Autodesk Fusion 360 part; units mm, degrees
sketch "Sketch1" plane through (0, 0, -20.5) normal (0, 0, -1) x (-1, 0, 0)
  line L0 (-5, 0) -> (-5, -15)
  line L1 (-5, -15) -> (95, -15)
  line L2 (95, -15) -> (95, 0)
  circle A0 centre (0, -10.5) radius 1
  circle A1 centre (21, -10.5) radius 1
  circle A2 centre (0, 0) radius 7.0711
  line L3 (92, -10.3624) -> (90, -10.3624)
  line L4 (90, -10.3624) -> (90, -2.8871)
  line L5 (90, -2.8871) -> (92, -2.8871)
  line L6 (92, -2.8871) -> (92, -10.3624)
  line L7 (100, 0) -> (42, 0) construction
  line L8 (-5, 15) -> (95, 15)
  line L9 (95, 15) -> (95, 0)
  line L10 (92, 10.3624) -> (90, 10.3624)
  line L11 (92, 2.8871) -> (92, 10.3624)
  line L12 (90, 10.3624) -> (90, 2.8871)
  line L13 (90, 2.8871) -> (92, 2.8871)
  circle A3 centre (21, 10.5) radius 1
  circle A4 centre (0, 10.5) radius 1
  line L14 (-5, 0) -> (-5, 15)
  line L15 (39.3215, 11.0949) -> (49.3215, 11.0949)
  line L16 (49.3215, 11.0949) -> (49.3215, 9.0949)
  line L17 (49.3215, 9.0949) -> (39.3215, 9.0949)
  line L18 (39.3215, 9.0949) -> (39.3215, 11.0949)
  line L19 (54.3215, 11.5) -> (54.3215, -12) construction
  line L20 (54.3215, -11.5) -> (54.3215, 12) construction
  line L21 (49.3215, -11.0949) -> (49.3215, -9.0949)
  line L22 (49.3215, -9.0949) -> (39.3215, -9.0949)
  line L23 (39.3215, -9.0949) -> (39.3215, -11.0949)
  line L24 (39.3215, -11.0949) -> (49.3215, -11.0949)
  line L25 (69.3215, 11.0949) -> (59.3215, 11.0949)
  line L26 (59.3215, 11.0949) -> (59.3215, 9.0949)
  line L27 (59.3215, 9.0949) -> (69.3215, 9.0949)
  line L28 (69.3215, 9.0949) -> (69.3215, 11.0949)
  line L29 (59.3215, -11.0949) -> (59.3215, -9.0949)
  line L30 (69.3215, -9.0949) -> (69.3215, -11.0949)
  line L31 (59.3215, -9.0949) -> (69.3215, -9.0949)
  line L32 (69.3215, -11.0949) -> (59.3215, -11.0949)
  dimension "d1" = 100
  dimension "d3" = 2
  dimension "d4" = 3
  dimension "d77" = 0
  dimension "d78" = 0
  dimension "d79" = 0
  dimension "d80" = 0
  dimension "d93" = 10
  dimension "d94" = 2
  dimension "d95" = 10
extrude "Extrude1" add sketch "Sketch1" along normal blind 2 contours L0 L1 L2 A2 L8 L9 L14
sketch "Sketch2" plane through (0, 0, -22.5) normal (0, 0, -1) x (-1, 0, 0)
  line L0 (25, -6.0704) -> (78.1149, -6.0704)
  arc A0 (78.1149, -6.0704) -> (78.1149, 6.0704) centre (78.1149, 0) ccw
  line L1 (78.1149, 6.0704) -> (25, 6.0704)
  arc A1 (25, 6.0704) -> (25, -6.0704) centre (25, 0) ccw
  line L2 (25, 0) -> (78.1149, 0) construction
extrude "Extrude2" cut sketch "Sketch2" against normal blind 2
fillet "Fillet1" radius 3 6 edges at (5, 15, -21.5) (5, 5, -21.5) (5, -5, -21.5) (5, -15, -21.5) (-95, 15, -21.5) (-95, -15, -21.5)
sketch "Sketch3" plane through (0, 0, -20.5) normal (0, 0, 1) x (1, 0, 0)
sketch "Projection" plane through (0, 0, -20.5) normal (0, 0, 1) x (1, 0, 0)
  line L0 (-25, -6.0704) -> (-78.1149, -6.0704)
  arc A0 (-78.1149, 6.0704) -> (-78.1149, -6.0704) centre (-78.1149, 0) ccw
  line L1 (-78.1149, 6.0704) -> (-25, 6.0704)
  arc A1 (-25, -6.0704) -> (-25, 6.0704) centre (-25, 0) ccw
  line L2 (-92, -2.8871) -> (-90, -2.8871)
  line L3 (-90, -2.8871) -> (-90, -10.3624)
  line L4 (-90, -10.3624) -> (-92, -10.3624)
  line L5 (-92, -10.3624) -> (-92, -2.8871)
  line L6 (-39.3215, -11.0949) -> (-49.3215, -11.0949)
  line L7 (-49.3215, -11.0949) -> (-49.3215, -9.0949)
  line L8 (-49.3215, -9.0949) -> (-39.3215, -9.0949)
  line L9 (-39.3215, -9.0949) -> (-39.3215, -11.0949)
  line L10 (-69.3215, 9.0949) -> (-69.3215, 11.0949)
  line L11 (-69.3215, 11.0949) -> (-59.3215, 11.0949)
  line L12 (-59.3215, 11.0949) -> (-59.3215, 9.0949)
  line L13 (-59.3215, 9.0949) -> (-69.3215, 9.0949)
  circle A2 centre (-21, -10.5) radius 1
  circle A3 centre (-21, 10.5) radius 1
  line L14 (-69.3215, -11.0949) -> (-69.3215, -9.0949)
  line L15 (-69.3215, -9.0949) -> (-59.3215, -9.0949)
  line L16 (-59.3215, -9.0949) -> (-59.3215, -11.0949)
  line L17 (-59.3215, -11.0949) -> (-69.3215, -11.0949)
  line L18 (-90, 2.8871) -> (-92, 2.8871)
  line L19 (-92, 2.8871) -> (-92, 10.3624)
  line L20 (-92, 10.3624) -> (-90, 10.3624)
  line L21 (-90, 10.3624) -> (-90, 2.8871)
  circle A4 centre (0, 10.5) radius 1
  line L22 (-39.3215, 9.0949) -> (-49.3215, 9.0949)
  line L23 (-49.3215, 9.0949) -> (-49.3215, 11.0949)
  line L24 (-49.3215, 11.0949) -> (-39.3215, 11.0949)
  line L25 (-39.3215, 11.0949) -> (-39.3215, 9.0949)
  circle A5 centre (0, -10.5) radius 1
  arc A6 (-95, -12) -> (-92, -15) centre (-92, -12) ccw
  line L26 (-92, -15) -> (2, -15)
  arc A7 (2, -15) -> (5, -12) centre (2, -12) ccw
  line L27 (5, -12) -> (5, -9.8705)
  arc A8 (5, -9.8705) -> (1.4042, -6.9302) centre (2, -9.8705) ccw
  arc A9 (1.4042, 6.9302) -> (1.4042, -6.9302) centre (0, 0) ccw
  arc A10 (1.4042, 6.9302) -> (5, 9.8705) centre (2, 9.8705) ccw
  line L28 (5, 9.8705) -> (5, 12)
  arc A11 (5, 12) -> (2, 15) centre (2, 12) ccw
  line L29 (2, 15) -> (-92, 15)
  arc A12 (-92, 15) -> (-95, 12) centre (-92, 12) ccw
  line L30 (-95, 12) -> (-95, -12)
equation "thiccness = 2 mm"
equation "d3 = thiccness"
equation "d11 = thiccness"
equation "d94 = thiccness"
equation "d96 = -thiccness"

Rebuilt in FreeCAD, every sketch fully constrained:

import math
import FreeCAD as App
import Part
import Sketcher
Q = App.Units.Quantity


def edges_at(feature, points):
    """Names of the edges that pass closest to the given points."""
    edges = feature.Shape.Edges
    near = lambda p: min(range(len(edges)), key=lambda i: edges[i].distToShape(Part.Vertex(*p))[0])
    return sorted({f"Edge{near(p) + 1}" for p in points})

doc = App.newDocument("Part")
body = doc.addObject("PartDesign::Body", "Body")

# Sketch on XY plane
sketch1 = body.newObject("Sketcher::SketchObject", "Sketch")
sketch1.AttachmentSupport = (doc.getObject("XY_Plane"), [""])
sketch1.MapMode = "FlatFace"
sketch1.AttachmentOffset = App.Placement(App.Vector(0, 0, -20.5), App.Rotation())
sketch1.addGeometry(Part.ArcOfCircle(Part.Circle(App.Vector(0, 0, 0), App.Vector(0, 0, 1), 7.1), math.radians(45), math.radians(315)), False)
sketch1.addGeometry(Part.LineSegment(App.Vector(5, -5, 0), App.Vector(5, -15, 0)), False)
sketch1.addGeometry(Part.LineSegment(App.Vector(5, -15, 0), App.Vector(-95, -15, 0)), False)
sketch1.addGeometry(Part.LineSegment(App.Vector(-95, -15, 0), App.Vector(-95, 15, 0)), False)
sketch1.addGeometry(Part.LineSegment(App.Vector(-95, 15, 0), App.Vector(5, 15, 0)), False)
sketch1.addGeometry(Part.LineSegment(App.Vector(5, 15, 0), App.Vector(5, 5, 0)), False)
sketch1.addGeometry(Part.Circle(App.Vector(0, -10.5, 0), App.Vector(0, 0, 1), 1), False)
sketch1.addGeometry(Part.Circle(App.Vector(-21, -10.5, 0), App.Vector(0, 0, 1), 1), False)
sketch1.addGeometry(Part.LineSegment(App.Vector(-49.3, -9.1, 0), App.Vector(-49.3, -11.1, 0)), False)
sketch1.addGeometry(Part.LineSegment(App.Vector(-49.3, -11.1, 0), App.Vector(-39.3, -11.1, 0)), False)
sketch1.addGeometry(Part.LineSegment(App.Vector(-39.3, -11.1, 0), App.Vector(-39.3, -9.1, 0)), False)
sketch1.addGeometry(Part.LineSegment(App.Vector(-39.3, -9.1, 0), App.Vector(-49.3, -9.1, 0)), False)
sketch1.addGeometry(Part.LineSegment(App.Vector(-69.3, -11.1, 0), App.Vector(-59.3, -11.1, 0)), False)
sketch1.addGeometry(Part.LineSegment(App.Vector(-59.3, -11.1, 0), App.Vector(-59.3, -9.1, 0)), False)
sketch1.addGeometry(Part.LineSegment(App.Vector(-59.3, -9.1, 0), App.Vector(-69.3, -9.1, 0)), False)
sketch1.addGeometry(Part.LineSegment(App.Vector(-69.3, -9.1, 0), App.Vector(-69.3, -11.1, 0)), False)
sketch1.addGeometry(Part.LineSegment(App.Vector(-92, -2.9, 0), App.Vector(-92, -10.4, 0)), False)
sketch1.addGeometry(Part.LineSegment(App.Vector(-92, -10.4, 0), App.Vector(-90, -10.4, 0)), False)
sketch1.addGeometry(Part.LineSegment(App.Vector(-90, -10.4, 0), App.Vector(-90, -2.9, 0)), False)
sketch1.addGeometry(Part.LineSegment(App.Vector(-90, -2.9, 0), App.Vector(-92, -2.9, 0)), False)
sketch1.addGeometry(Part.Circle(App.Vector(0, 10.5, 0), App.Vector(0, 0, 1), 1), False)
sketch1.addGeometry(Part.Circle(App.Vector(-21, 10.5, 0), App.Vector(0, 0, 1), 1), False)
sketch1.addGeometry(Part.LineSegment(App.Vector(-90, 10.4, 0), App.Vector(-92, 10.4, 0)), False)
sketch1.addGeometry(Part.LineSegment(App.Vector(-92, 10.4, 0), App.Vector(-92, 2.9, 0)), False)
sketch1.addGeometry(Part.LineSegment(App.Vector(-92, 2.9, 0), App.Vector(-90, 2.9, 0)), False)
sketch1.addGeometry(Part.LineSegment(App.Vector(-90, 2.9, 0), App.Vector(-90, 10.4, 0)), False)
sketch1.addGeometry(Part.LineSegment(App.Vector(-39.3, 9.1, 0), App.Vector(-39.3, 11.1, 0)), False)
sketch1.addGeometry(Part.LineSegment(App.Vector(-39.3, 11.1, 0), App.Vector(-49.3, 11.1, 0)), False)
sketch1.addGeometry(Part.LineSegment(App.Vector(-49.3, 11.1, 0), App.Vector(-49.3, 9.1, 0)), False)
sketch1.addGeometry(Part.LineSegment(App.Vector(-49.3, 9.1, 0), App.Vector(-39.3, 9.1, 0)), False)
sketch1.addGeometry(Part.LineSegment(App.Vector(-59.3, 11.1, 0), App.Vector(-69.3, 11.1, 0)), False)
sketch1.addGeometry(Part.LineSegment(App.Vector(-69.3, 11.1, 0), App.Vector(-69.3, 9.1, 0)), False)
sketch1.addGeometry(Part.LineSegment(App.Vector(-69.3, 9.1, 0), App.Vector(-59.3, 9.1, 0)), False)
sketch1.addGeometry(Part.LineSegment(App.Vector(-59.3, 9.1, 0), App.Vector(-59.3, 11.1, 0)), False)
sketch1.addConstraint(Sketcher.Constraint("Coincident", 0, 2, 1, 1))
sketch1.addConstraint(Sketcher.Constraint("Coincident", 1, 2, 2, 1))
sketch1.addConstraint(Sketcher.Constraint("Coincident", 2, 2, 3, 1))
sketch1.addConstraint(Sketcher.Constraint("Coincident", 3, 2, 4, 1))
sketch1.addConstraint(Sketcher.Constraint("Coincident", 4, 2, 5, 1))
sketch1.addConstraint(Sketcher.Constraint("Coincident", 5, 2, 0, 1))
sketch1.addConstraint(Sketcher.Constraint("Coincident", 8, 2, 9, 1))
sketch1.addConstraint(Sketcher.Constraint("Coincident", 9, 2, 10, 1))
sketch1.addConstraint(Sketcher.Constraint("Coincident", 10, 2, 11, 1))
sketch1.addConstraint(Sketcher.Constraint("Coincident", 11, 2, 8, 1))
sketch1.addConstraint(Sketcher.Constraint("Coincident", 12, 2, 13, 1))
sketch1.addConstraint(Sketcher.Constraint("Coincident", 13, 2, 14, 1))
sketch1.addConstraint(Sketcher.Constraint("Coincident", 14, 2, 15, 1))
sketch1.addConstraint(Sketcher.Constraint("Coincident", 15, 2, 12, 1))
sketch1.addConstraint(Sketcher.Constraint("Coincident", 16, 2, 17, 1))
sketch1.addConstraint(Sketcher.Constraint("Coincident", 17, 2, 18, 1))
sketch1.addConstraint(Sketcher.Constraint("Coincident", 18, 2, 19, 1))
sketch1.addConstraint(Sketcher.Constraint("Coincident", 19, 2, 16, 1))
sketch1.addConstraint(Sketcher.Constraint("Coincident", 22, 2, 23, 1))
sketch1.addConstraint(Sketcher.Constraint("Coincident", 23, 2, 24, 1))
sketch1.addConstraint(Sketcher.Constraint("Coincident", 24, 2, 25, 1))
sketch1.addConstraint(Sketcher.Constraint("Coincident", 25, 2, 22, 1))
sketch1.addConstraint(Sketcher.Constraint("Coincident", 26, 2, 27, 1))
sketch1.addConstraint(Sketcher.Constraint("Coincident", 27, 2, 28, 1))
sketch1.addConstraint(Sketcher.Constraint("Coincident", 28, 2, 29, 1))
sketch1.addConstraint(Sketcher.Constraint("Coincident", 29, 2, 26, 1))
sketch1.addConstraint(Sketcher.Constraint("Coincident", 30, 2, 31, 1))
sketch1.addConstraint(Sketcher.Constraint("Coincident", 31, 2, 32, 1))
sketch1.addConstraint(Sketcher.Constraint("Coincident", 32, 2, 33, 1))
sketch1.addConstraint(Sketcher.Constraint("Coincident", 33, 2, 30, 1))
sketch1.addConstraint(Sketcher.Constraint("Vertical", 1))
sketch1.addConstraint(Sketcher.Constraint("Horizontal", 2))
sketch1.addConstraint(Sketcher.Constraint("Vertical", 3))
sketch1.addConstraint(Sketcher.Constraint("Horizontal", 4))
sketch1.addConstraint(Sketcher.Constraint("Vertical", 5))
sketch1.addConstraint(Sketcher.Constraint("Vertical", 8))
sketch1.addConstraint(Sketcher.Constraint("Horizontal", 9))
sketch1.addConstraint(Sketcher.Constraint("Vertical", 10))
sketch1.addConstraint(Sketcher.Constraint("Horizontal", 11))
sketch1.addConstraint(Sketcher.Constraint("Horizontal", 12))
sketch1.addConstraint(Sketcher.Constraint("Vertical", 13))
sketch1.addConstraint(Sketcher.Constraint("Horizontal", 14))
sketch1.addConstraint(Sketcher.Constraint("Vertical", 15))
sketch1.addConstraint(Sketcher.Constraint("Vertical", 16))
sketch1.addConstraint(Sketcher.Constraint("Horizontal", 17))
sketch1.addConstraint(Sketcher.Constraint("Vertical", 18))
sketch1.addConstraint(Sketcher.Constraint("Horizontal", 19))
sketch1.addConstraint(Sketcher.Constraint("Horizontal", 22))
sketch1.addConstraint(Sketcher.Constraint("Vertical", 23))
sketch1.addConstraint(Sketcher.Constraint("Horizontal", 24))
sketch1.addConstraint(Sketcher.Constraint("Vertical", 25))
sketch1.addConstraint(Sketcher.Constraint("Vertical", 26))
sketch1.addConstraint(Sketcher.Constraint("Horizontal", 27))
sketch1.addConstraint(Sketcher.Constraint("Vertical", 28))
sketch1.addConstraint(Sketcher.Constraint("Horizontal", 29))
sketch1.addConstraint(Sketcher.Constraint("Horizontal", 30))
sketch1.addConstraint(Sketcher.Constraint("Vertical", 31))
sketch1.addConstraint(Sketcher.Constraint("Horizontal", 32))
sketch1.addConstraint(Sketcher.Constraint("Vertical", 33))
sketch1.addConstraint(Sketcher.Constraint("Coincident", 0, 3, -1, 1))
sketch1.addConstraint(Sketcher.Constraint("Equal", 6, 7))
sketch1.addConstraint(Sketcher.Constraint("Equal", 7, 20))
sketch1.addConstraint(Sketcher.Constraint("Equal", 20, 21))
sketch1.addConstraint(Sketcher.Constraint("Symmetric", 6, 3, 20, 3, -1, 1))
sketch1.addConstraint(Sketcher.Constraint("Symmetric", 7, 3, 21, 3, -1))
sketch1.addConstraint(Sketcher.Constraint("Symmetric", 1, 2, 4, 2, -1))
sketch1.addConstraint(Sketcher.Constraint("Symmetric", 16, 2, 22, 2, -1))
sketch1.addConstraint(Sketcher.Constraint("Symmetric", 18, 2, 24, 2, -1))
sketch1.addConstraint(Sketcher.Constraint("Symmetric", 9, 2, 26, 2, -1))
sketch1.addConstraint(Sketcher.Constraint("Symmetric", 11, 2, 28, 2, -1))
sketch1.addConstraint(Sketcher.Constraint("Symmetric", 15, 2, 30, 2, -1))
sketch1.addConstraint(Sketcher.Constraint("Symmetric", 13, 2, 32, 2, -1))
sketch1.addConstraint(Sketcher.Constraint("PointOnObject", 6, 3, -2))
sketch1.addConstraint(Sketcher.Constraint("Horizontal", 6, 3, 7, 3))
sketch1.addConstraint(Sketcher.Constraint("Horizontal", 9, 2, 12, 2))
sketch1.addConstraint(Sketcher.Constraint("Horizontal", 11, 2, 13, 2))
sketch1.addConstraint(Sketcher.Constraint("Equal", 11, 12))
sketch1.addConstraint(Sketcher.Constraint("Equal", 32, 1))
sketch1.addConstraint(Sketcher.Constraint("Equal", 24, 8))
sketch1.addConstraint(Sketcher.Constraint("Diameter", 6, Q("2 mm")))
sketch1.addConstraint(Sketcher.Constraint("DistanceX", 2, 2, 2, 1, Q("100 mm")))
sketch1.addConstraint(Sketcher.Constraint("DistanceX", 9, 1, 9, 2, Q("10 mm")))
sketch1.addConstraint(Sketcher.Constraint("DistanceX", 17, 1, 17, 2, Q("2 mm")))
sketch1.addConstraint(Sketcher.Constraint("DistanceY", 0, 2, 5, 2, Q("10 mm")))
sketch1.addConstraint(Sketcher.Constraint("DistanceX", 12, 2, 8, 2, Q("10 mm")))
sketch1.addConstraint(Sketcher.Constraint("DistanceX", 2, 2, 16, 2, Q("3 mm")))
sketch1.addConstraint(Sketcher.Constraint("DistanceX", 7, 3, -1, 1, Q("21 mm")))
sketch1.addConstraint(Sketcher.Constraint("DistanceX", -1, 1, 0, 2, Q("5 mm")))
sketch1.addConstraint(Sketcher.Constraint("DistanceY", 6, 3, 20, 3, Q("21 mm")))
sketch1.addConstraint(Sketcher.Constraint("DistanceY", 16, 2, 16, 1, Q("7.4753 mm")))
sketch1.addConstraint(Sketcher.Constraint("DistanceY", 8, 2, -1, 1, Q("11.095 mm")))
sketch1.addConstraint(Sketcher.Constraint("DistanceY", 18, 2, -1, 1, Q("2.887 mm")))
sketch1.addConstraint(Sketcher.Constraint("DistanceX", 8, 2, -1, 1, Q("49.3215 mm")))
pad1 = body.newObject("PartDesign::Pad", "Pad")
pad1.Profile = sketch1
pad1.Length = 2
pad1.Reversed = True

# Sketch on XY plane
sketch2 = body.newObject("Sketcher::SketchObject", "Sketch001")
sketch2.AttachmentSupport = (doc.getObject("XY_Plane"), [""])
sketch2.MapMode = "FlatFace"
sketch2.AttachmentOffset = App.Placement(App.Vector(0, 0, -22.5), App.Rotation())
sketch2.addGeometry(Part.ArcOfCircle(Part.Circle(App.Vector(-25, 0, 0), App.Vector(0, 0, 1), 6), math.radians(-90), math.radians(90)), False)
sketch2.addGeometry(Part.LineSegment(App.Vector(-25, -6, 0), App.Vector(-78, -6, 0)), False)
sketch2.addGeometry(Part.ArcOfCircle(Part.Circle(App.Vector(-78, 0, 0), App.Vector(0, 0, 1), 6), math.radians(90), math.radians(270)), False)
sketch2.addGeometry(Part.LineSegment(App.Vector(-78, 6, 0), App.Vector(-25, 6, 0)), False)
sketch2.addConstraint(Sketcher.Constraint("Tangent", 0, 1, 1, 1))
sketch2.addConstraint(Sketcher.Constraint("Tangent", 1, 2, 2, 2))
sketch2.addConstraint(Sketcher.Constraint("Tangent", 2, 1, 3, 1))
sketch2.addConstraint(Sketcher.Constraint("Tangent", 3, 2, 0, 2))
sketch2.addConstraint(Sketcher.Constraint("Horizontal", 1))
sketch2.addConstraint(Sketcher.Constraint("Horizontal", 3))
sketch2.addConstraint(Sketcher.Constraint("PointOnObject", 0, 3, -1))
sketch2.addConstraint(Sketcher.Constraint("DistanceX", 0, 3, -1, 1, Q("25 mm")))
sketch2.addConstraint(Sketcher.Constraint("Radius", 0, Q("6.0704 mm")))
sketch2.addConstraint(Sketcher.Constraint("DistanceX", 1, 2, 1, 1, Q("53.115 mm")))
pocket1 = body.newObject("PartDesign::Pocket", "Pocket")
pocket1.Profile = sketch2
pocket1.Length = 2
pocket1.Reversed = True
doc.recompute()

fillet = body.newObject("PartDesign::Fillet", "Fillet")
fillet.Base = (pocket1, edges_at(pocket1, [
    (5, 15, -21.5),
    (5, 5, -21.5),
    (5, -5, -21.5),
    (5, -15, -21.5),
    (-95, 15, -21.5),
    (-95, -15, -21.5),
]))
fillet.Radius = 3

doc.recompute()
